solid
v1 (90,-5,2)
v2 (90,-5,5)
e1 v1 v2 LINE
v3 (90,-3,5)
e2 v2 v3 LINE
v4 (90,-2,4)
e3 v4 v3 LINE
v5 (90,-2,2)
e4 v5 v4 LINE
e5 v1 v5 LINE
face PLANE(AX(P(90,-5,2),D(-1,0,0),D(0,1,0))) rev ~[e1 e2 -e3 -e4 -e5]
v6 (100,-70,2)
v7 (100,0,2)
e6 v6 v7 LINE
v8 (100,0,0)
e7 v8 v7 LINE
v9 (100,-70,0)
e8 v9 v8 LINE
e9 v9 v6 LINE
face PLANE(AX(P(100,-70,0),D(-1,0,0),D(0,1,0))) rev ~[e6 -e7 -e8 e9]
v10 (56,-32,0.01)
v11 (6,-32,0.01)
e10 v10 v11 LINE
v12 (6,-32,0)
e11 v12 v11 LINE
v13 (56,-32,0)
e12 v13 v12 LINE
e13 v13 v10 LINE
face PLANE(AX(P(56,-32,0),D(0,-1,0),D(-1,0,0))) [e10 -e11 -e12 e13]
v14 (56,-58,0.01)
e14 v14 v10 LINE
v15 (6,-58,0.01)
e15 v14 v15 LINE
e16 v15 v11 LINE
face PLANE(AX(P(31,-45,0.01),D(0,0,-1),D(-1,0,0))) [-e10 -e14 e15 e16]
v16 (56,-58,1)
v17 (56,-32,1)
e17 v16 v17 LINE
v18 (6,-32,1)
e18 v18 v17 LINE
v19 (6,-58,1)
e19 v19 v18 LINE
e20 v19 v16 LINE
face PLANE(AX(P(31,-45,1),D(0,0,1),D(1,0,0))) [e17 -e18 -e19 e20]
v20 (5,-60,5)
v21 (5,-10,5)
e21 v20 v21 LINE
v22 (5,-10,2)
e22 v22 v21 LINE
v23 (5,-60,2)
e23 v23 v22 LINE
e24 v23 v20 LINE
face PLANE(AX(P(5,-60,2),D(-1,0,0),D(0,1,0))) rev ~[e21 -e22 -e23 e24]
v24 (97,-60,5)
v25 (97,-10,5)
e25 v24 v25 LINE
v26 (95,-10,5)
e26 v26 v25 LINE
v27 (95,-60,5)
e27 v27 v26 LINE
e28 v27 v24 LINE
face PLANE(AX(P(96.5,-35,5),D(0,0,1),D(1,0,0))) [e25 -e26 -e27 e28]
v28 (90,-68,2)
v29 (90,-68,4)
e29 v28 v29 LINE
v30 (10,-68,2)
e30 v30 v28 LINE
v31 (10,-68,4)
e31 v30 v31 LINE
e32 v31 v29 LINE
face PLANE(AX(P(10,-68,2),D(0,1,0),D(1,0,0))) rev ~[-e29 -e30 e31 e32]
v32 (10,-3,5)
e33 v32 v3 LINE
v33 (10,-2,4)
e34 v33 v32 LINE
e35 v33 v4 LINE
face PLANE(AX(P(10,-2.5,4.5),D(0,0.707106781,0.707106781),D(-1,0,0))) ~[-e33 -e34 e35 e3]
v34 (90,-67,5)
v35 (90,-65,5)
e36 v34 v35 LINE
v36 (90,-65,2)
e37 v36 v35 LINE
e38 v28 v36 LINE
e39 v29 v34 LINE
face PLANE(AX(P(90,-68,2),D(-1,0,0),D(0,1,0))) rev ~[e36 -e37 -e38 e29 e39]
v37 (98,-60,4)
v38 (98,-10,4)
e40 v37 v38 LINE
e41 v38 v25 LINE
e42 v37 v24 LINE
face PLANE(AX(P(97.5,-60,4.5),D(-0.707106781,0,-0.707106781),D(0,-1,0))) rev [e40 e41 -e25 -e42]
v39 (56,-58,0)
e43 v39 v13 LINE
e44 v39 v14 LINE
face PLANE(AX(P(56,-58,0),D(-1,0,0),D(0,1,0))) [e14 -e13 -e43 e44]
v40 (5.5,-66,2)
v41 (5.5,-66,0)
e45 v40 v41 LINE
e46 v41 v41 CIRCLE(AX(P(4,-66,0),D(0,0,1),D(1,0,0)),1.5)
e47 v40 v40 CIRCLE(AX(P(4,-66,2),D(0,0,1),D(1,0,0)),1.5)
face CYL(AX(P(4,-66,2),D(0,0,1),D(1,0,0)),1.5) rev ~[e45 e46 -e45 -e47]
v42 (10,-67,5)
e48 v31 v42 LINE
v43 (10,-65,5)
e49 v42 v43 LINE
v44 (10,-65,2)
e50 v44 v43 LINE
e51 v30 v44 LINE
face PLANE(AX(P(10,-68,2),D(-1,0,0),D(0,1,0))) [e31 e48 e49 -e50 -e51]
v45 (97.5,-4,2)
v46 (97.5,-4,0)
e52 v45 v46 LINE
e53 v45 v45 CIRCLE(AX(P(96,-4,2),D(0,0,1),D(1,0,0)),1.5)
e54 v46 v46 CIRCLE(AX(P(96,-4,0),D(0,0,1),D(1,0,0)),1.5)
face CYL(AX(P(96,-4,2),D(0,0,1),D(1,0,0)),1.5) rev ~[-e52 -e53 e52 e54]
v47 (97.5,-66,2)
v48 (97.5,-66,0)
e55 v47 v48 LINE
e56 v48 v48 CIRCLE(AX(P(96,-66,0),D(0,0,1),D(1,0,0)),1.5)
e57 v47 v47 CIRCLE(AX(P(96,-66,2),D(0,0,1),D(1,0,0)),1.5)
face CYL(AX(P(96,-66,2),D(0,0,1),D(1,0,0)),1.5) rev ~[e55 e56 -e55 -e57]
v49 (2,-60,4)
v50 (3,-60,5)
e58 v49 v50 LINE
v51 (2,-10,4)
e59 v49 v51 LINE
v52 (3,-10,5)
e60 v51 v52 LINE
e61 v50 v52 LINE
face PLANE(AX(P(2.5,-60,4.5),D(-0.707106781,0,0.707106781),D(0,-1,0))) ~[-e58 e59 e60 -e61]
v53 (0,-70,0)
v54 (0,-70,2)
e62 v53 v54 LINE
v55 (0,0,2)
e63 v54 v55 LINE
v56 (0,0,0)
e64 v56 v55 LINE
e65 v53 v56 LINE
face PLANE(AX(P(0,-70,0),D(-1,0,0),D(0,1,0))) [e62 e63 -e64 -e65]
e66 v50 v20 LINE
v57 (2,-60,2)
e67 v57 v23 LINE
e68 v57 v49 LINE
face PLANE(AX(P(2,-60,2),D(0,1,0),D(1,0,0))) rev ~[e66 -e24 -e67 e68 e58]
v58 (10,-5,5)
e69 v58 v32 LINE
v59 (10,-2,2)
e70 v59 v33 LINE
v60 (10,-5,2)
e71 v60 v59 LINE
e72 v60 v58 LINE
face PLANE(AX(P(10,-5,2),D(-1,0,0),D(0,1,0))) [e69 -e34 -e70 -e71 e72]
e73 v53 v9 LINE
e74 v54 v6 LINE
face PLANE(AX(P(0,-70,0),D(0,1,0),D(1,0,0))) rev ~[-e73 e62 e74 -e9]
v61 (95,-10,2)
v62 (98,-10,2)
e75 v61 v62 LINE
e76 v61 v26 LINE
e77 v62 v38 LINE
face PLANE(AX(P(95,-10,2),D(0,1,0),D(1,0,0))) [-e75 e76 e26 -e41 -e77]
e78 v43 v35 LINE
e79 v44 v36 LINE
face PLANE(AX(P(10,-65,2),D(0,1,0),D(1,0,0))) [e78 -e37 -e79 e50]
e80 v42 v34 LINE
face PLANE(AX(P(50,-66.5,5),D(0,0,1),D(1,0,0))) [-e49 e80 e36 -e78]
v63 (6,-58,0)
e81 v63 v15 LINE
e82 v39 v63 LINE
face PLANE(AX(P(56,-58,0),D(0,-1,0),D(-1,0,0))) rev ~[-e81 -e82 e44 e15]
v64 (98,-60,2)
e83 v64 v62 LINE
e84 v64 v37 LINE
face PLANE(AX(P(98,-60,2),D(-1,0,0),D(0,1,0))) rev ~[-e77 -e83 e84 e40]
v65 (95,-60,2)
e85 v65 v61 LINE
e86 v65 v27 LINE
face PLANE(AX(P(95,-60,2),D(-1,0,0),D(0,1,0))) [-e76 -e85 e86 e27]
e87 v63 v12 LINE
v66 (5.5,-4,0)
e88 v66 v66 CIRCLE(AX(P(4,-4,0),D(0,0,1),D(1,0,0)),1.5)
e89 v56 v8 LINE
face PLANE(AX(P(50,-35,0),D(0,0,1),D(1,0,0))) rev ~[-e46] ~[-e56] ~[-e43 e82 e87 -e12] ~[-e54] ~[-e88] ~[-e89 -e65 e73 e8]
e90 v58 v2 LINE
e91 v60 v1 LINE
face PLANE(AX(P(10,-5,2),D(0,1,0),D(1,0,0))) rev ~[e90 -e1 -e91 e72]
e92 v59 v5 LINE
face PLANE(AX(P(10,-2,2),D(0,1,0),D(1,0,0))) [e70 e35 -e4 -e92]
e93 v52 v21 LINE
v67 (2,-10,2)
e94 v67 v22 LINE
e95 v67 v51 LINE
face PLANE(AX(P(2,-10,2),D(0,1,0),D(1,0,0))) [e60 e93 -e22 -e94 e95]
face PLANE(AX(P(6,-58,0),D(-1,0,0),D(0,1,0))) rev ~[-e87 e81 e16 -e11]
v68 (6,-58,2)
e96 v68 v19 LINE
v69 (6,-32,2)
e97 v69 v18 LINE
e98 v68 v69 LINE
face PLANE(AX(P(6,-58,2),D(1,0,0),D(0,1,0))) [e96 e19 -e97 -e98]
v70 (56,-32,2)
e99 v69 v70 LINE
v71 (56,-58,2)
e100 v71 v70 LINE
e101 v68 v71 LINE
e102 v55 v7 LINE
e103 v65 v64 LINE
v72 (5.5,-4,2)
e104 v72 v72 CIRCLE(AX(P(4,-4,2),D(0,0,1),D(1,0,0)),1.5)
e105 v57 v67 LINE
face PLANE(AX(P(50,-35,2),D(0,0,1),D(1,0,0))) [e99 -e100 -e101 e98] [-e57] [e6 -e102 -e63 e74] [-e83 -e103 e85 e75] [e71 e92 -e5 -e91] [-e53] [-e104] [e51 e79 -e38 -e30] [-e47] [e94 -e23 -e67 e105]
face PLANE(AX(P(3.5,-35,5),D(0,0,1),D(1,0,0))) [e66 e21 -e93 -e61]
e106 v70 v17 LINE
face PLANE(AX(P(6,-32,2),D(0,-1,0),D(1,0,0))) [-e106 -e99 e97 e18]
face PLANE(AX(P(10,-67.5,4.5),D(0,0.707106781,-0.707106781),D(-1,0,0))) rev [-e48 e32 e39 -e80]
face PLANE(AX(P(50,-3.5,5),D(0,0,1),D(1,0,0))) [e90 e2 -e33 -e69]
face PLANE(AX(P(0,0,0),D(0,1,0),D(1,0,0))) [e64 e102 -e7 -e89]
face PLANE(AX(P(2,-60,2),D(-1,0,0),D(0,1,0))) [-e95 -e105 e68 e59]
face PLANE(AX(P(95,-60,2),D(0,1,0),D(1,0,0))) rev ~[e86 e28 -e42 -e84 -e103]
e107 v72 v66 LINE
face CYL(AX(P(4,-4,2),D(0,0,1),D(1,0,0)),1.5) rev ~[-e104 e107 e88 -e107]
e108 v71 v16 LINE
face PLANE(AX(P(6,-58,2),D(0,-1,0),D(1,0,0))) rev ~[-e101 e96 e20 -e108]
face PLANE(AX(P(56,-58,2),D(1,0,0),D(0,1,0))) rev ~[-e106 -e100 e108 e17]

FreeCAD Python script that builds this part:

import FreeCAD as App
import Part
import Sketcher


def edges_at(feature, points):
    """Names of the edges that pass closest to the given points."""
    edges = feature.Shape.Edges
    near = lambda p: min(range(len(edges)), key=lambda i: edges[i].distToShape(Part.Vertex(*p))[0])
    return sorted({f"Edge{near(p) + 1}" for p in points})

doc = App.newDocument("Part")
body = doc.addObject("PartDesign::Body", "Body")

# Sketch on XY plane
sketch1 = doc.addObject("Sketcher::SketchObject", "Sketch")
body.addObject(sketch1)
sketch1.AttachmentSupport = (doc.XY_Plane, [""])
sketch1.MapMode = "FlatFace"
sketch1.addGeometry(Part.LineSegment(App.Vector(0, 0, 0), App.Vector(0, -70, 0)), False)
sketch1.addGeometry(Part.LineSegment(App.Vector(0, -70, 0), App.Vector(100, -70, 0)), False)
sketch1.addGeometry(Part.LineSegment(App.Vector(100, -70, 0), App.Vector(100, 0, 0)), False)
sketch1.addGeometry(Part.LineSegment(App.Vector(100, 0, 0), App.Vector(0, 0, 0)), False)
sketch1.addConstraint(Sketcher.Constraint("Coincident", 0, 2, 1, 1))
sketch1.addConstraint(Sketcher.Constraint("Coincident", 1, 2, 2, 1))
sketch1.addConstraint(Sketcher.Constraint("Coincident", 2, 2, 3, 1))
sketch1.addConstraint(Sketcher.Constraint("Coincident", 3, 2, 0, 1))
sketch1.addConstraint(Sketcher.Constraint("Vertical", 0))
sketch1.addConstraint(Sketcher.Constraint("Horizontal", 1))
sketch1.addConstraint(Sketcher.Constraint("Vertical", 2))
sketch1.addConstraint(Sketcher.Constraint("Horizontal", 3))
sketch1.addConstraint(Sketcher.Constraint("Coincident", 3, 2, -1, 1))
sketch1.addConstraint(Sketcher.Constraint("DistanceX", 1, 1, 1, 2, 100.0))
sketch1.addConstraint(Sketcher.Constraint("DistanceY", 0, 2, 0, 1, 70.0))
pad1 = doc.addObject("PartDesign::Pad", "Pad")
body.addObject(pad1)
pad1.Profile = sketch1
pad1.Length = 2

# Sketch on XY plane
sketch2 = doc.addObject("Sketcher::SketchObject", "Sketch001")
body.addObject(sketch2)
sketch2.AttachmentSupport = (doc.XY_Plane, [""])
sketch2.MapMode = "FlatFace"
sketch2.AttachmentOffset = App.Placement(App.Vector(0, 0, 2), App.Rotation())
sketch2.addGeometry(Part.LineSegment(App.Vector(10, -2, 0), App.Vector(10, -5, 0)), False)
sketch2.addGeometry(Part.LineSegment(App.Vector(10, -5, 0), App.Vector(90, -5, 0)), False)
sketch2.addGeometry(Part.LineSegment(App.Vector(90, -5, 0), App.Vector(90, -2, 0)), False)
sketch2.addGeometry(Part.LineSegment(App.Vector(90, -2, 0), App.Vector(10, -2, 0)), False)
sketch2.addGeometry(Part.LineSegment(App.Vector(10, -65, 0), App.Vector(10, -68, 0)), False)
sketch2.addGeometry(Part.LineSegment(App.Vector(10, -68, 0), App.Vector(90, -68, 0)), False)
sketch2.addGeometry(Part.LineSegment(App.Vector(90, -68, 0), App.Vector(90, -65, 0)), False)
sketch2.addGeometry(Part.LineSegment(App.Vector(90, -65, 0), App.Vector(10, -65, 0)), False)
sketch2.addGeometry(Part.LineSegment(App.Vector(95, -10, 0), App.Vector(95, -60, 0)), False)
sketch2.addGeometry(Part.LineSegment(App.Vector(95, -60, 0), App.Vector(98, -60, 0)), False)
sketch2.addGeometry(Part.LineSegment(App.Vector(98, -60, 0), App.Vector(98, -10, 0)), False)
sketch2.addGeometry(Part.LineSegment(App.Vector(98, -10, 0), App.Vector(95, -10, 0)), False)
sketch2.addGeometry(Part.LineSegment(App.Vector(2, -10, 0), App.Vector(2, -60, 0)), False)
sketch2.addGeometry(Part.LineSegment(App.Vector(2, -60, 0), App.Vector(5, -60, 0)), False)
sketch2.addGeometry(Part.LineSegment(App.Vector(5, -60, 0), App.Vector(5, -10, 0)), False)
sketch2.addGeometry(Part.LineSegment(App.Vector(5, -10, 0), App.Vector(2, -10, 0)), False)
sketch2.addConstraint(Sketcher.Constraint("Coincident", 0, 2, 1, 1))
sketch2.addConstraint(Sketcher.Constraint("Coincident", 1, 2, 2, 1))
sketch2.addConstraint(Sketcher.Constraint("Coincident", 2, 2, 3, 1))
sketch2.addConstraint(Sketcher.Constraint("Coincident", 3, 2, 0, 1))
sketch2.addConstraint(Sketcher.Constraint("Coincident", 4, 2, 5, 1))
sketch2.addConstraint(Sketcher.Constraint("Coincident", 5, 2, 6, 1))
sketch2.addConstraint(Sketcher.Constraint("Coincident", 6, 2, 7, 1))
sketch2.addConstraint(Sketcher.Constraint("Coincident", 7, 2, 4, 1))
sketch2.addConstraint(Sketcher.Constraint("Coincident", 8, 2, 9, 1))
sketch2.addConstraint(Sketcher.Constraint("Coincident", 9, 2, 10, 1))
sketch2.addConstraint(Sketcher.Constraint("Coincident", 10, 2, 11, 1))
sketch2.addConstraint(Sketcher.Constraint("Coincident", 11, 2, 8, 1))
sketch2.addConstraint(Sketcher.Constraint("Coincident", 12, 2, 13, 1))
sketch2.addConstraint(Sketcher.Constraint("Coincident", 13, 2, 14, 1))
sketch2.addConstraint(Sketcher.Constraint("Coincident", 14, 2, 15, 1))
sketch2.addConstraint(Sketcher.Constraint("Coincident", 15, 2, 12, 1))
sketch2.addConstraint(Sketcher.Constraint("Vertical", 0))
sketch2.addConstraint(Sketcher.Constraint("Horizontal", 1))
sketch2.addConstraint(Sketcher.Constraint("Vertical", 2))
sketch2.addConstraint(Sketcher.Constraint("Horizontal", 3))
sketch2.addConstraint(Sketcher.Constraint("Vertical", 4))
sketch2.addConstraint(Sketcher.Constraint("Horizontal", 5))
sketch2.addConstraint(Sketcher.Constraint("Vertical", 6))
sketch2.addConstraint(Sketcher.Constraint("Horizontal", 7))
sketch2.addConstraint(Sketcher.Constraint("Vertical", 8))
sketch2.addConstraint(Sketcher.Constraint("Horizontal", 9))
sketch2.addConstraint(Sketcher.Constraint("Vertical", 10))
sketch2.addConstraint(Sketcher.Constraint("Horizontal", 11))
sketch2.addConstraint(Sketcher.Constraint("Vertical", 12))
sketch2.addConstraint(Sketcher.Constraint("Horizontal", 13))
sketch2.addConstraint(Sketcher.Constraint("Vertical", 14))
sketch2.addConstraint(Sketcher.Constraint("Horizontal", 15))
sketch2.addConstraint(Sketcher.Constraint("Horizontal", 9, 2, 12, 2))
sketch2.addConstraint(Sketcher.Constraint("Horizontal", 11, 2, 14, 2))
sketch2.addConstraint(Sketcher.Constraint("Vertical", 3, 2, 4, 2))
sketch2.addConstraint(Sketcher.Constraint("Vertical", 2, 2, 5, 2))
sketch2.addConstraint(Sketcher.Constraint("Equal", 11, 13))
sketch2.addConstraint(Sketcher.Constraint("Equal", 15, 0))
sketch2.addConstraint(Sketcher.Constraint("Equal", 2, 4))
sketch2.addConstraint(Sketcher.Constraint("DistanceX", 1, 1, 1, 2, 80.0))
sketch2.addConstraint(Sketcher.Constraint("DistanceX", 9, 1, 9, 2, 3.0))
sketch2.addConstraint(Sketcher.Constraint("DistanceY", 8, 2, 8, 1, 50.0))
sketch2.addConstraint(Sketcher.Constraint("DistanceX", -1, 1, 0, 2, 10.0))
sketch2.addConstraint(Sketcher.Constraint("DistanceY", 0, 2, -1, 1, 5.0))
sketch2.addConstraint(Sketcher.Constraint("DistanceY", 4, 2, -1, 1, 68.0))
sketch2.addConstraint(Sketcher.Constraint("DistanceX", -1, 1, 8, 2, 95.0))
sketch2.addConstraint(Sketcher.Constraint("DistanceY", 8, 2, -1, 1, 60.0))
sketch2.addConstraint(Sketcher.Constraint("DistanceX", -1, 1, 12, 2, 2.0))
pad2 = doc.addObject("PartDesign::Pad", "Pad001")
body.addObject(pad2)
pad2.Profile = sketch2
pad2.Length = 3
doc.recompute()

chamfer = doc.addObject("PartDesign::Chamfer", "Chamfer")
body.addObject(chamfer)
chamfer.Base = (pad2, edges_at(pad2, [
    (50, -2, 5),
    (50, -68, 5),
    (98, -35, 5),
    (2, -35, 5),
]))
chamfer.Size = 1

# Sketch on XY plane
sketch3 = doc.addObject("Sketcher::SketchObject", "Sketch002")
body.addObject(sketch3)
sketch3.AttachmentSupport = (doc.XY_Plane, [""])
sketch3.MapMode = "FlatFace"
sketch3.AttachmentOffset = App.Placement(App.Vector(0, 0, 2), App.Rotation())
sketch3.addGeometry(Part.Circle(App.Vector(4, -4, 0), App.Vector(0, 0, 1), 1.5), False)
sketch3.addGeometry(Part.Circle(App.Vector(96, -4, 0), App.Vector(0, 0, 1), 1.5), False)
sketch3.addGeometry(Part.Circle(App.Vector(96, -66, 0), App.Vector(0, 0, 1), 1.5), False)
sketch3.addGeometry(Part.Circle(App.Vector(4, -66, 0), App.Vector(0, 0, 1), 1.5), False)
sketch3.addConstraint(Sketcher.Constraint("Equal", 0, 1))
sketch3.addConstraint(Sketcher.Constraint("Equal", 1, 2))
sketch3.addConstraint(Sketcher.Constraint("Equal", 2, 3))
sketch3.addConstraint(Sketcher.Constraint("Horizontal", 0, 3, 1, 3))
sketch3.addConstraint(Sketcher.Constraint("Horizontal", 2, 3, 3, 3))
sketch3.addConstraint(Sketcher.Constraint("Vertical", 1, 3, 2, 3))
sketch3.addConstraint(Sketcher.Constraint("Vertical", 0, 3, 3, 3))
sketch3.addConstraint(Sketcher.Constraint("Diameter", 0, 3.0))
sketch3.addConstraint(Sketcher.Constraint("DistanceX", -1, 1, 0, 3, 4.0))
sketch3.addConstraint(Sketcher.Constraint("DistanceY", 0, 3, -1, 1, 4.0))
sketch3.addConstraint(Sketcher.Constraint("DistanceX", -1, 1, 1, 3, 96.0))
sketch3.addConstraint(Sketcher.Constraint("DistanceY", 2, 3, -1, 1, 66.0))
pocket1 = doc.addObject("PartDesign::Pocket", "Pocket")
body.addObject(pocket1)
pocket1.Profile = sketch3
pocket1.Type = "ThroughAll"

# Sketch on XY plane
sketch4 = doc.addObject("Sketcher::SketchObject", "Sketch003")
body.addObject(sketch4)
sketch4.AttachmentSupport = (doc.XY_Plane, [""])
sketch4.MapMode = "FlatFace"
sketch4.addGeometry(Part.LineSegment(App.Vector(56, -32, 0), App.Vector(56, -58, 0)), False)
sketch4.addGeometry(Part.LineSegment(App.Vector(56, -58, 0), App.Vector(6, -58, 0)), False)
sketch4.addGeometry(Part.LineSegment(App.Vector(6, -58, 0), App.Vector(6, -32, 0)), False)
sketch4.addGeometry(Part.LineSegment(App.Vector(6, -32, 0), App.Vector(56, -32, 0)), False)
sketch4.addConstraint(Sketcher.Constraint("Coincident", 0, 2, 1, 1))
sketch4.addConstraint(Sketcher.Constraint("Coincident", 1, 2, 2, 1))
sketch4.addConstraint(Sketcher.Constraint("Coincident", 2, 2, 3, 1))
sketch4.addConstraint(Sketcher.Constraint("Coincident", 3, 2, 0, 1))
sketch4.addConstraint(Sketcher.Constraint("Vertical", 0))
sketch4.addConstraint(Sketcher.Constraint("Horizontal", 1))
sketch4.addConstraint(Sketcher.Constraint("Vertical", 2))
sketch4.addConstraint(Sketcher.Constraint("Horizontal", 3))
sketch4.addConstraint(Sketcher.Constraint("DistanceX", 1, 2, 1, 1, 50.0))
sketch4.addConstraint(Sketcher.Constraint("DistanceY", 0, 2, 0, 1, 26.0))
sketch4.addConstraint(Sketcher.Constraint("DistanceX", -1, 1, 0, 2, 56.0))
sketch4.addConstraint(Sketcher.Constraint("DistanceY", 0, 2, -1, 1, 58.0))
pocket2 = doc.addObject("PartDesign::Pocket", "Pocket001")
body.addObject(pocket2)
pocket2.Profile = sketch4
pocket2.Length = 0.01
pocket2.Reversed = True

# Sketch on XY plane
sketch5 = doc.addObject("Sketcher::SketchObject", "Sketch004")
body.addObject(sketch5)
sketch5.AttachmentSupport = (doc.XY_Plane, [""])
sketch5.MapMode = "FlatFace"
sketch5.AttachmentOffset = App.Placement(App.Vector(0, 0, 2), App.Rotation())
sketch5.addGeometry(Part.LineSegment(App.Vector(6, -32, 0), App.Vector(6, -58, 0)), False)
sketch5.addGeometry(Part.LineSegment(App.Vector(6, -58, 0), App.Vector(56, -58, 0)), False)
sketch5.addGeometry(Part.LineSegment(App.Vector(56, -58, 0), App.Vector(56, -32, 0)), False)
sketch5.addGeometry(Part.LineSegment(App.Vector(56, -32, 0), App.Vector(6, -32, 0)), False)
sketch5.addConstraint(Sketcher.Constraint("Coincident", 0, 2, 1, 1))
sketch5.addConstraint(Sketcher.Constraint("Coincident", 1, 2, 2, 1))
sketch5.addConstraint(Sketcher.Constraint("Coincident", 2, 2, 3, 1))
sketch5.addConstraint(Sketcher.Constraint("Coincident", 3, 2, 0, 1))
sketch5.addConstraint(Sketcher.Constraint("Vertical", 0))
sketch5.addConstraint(Sketcher.Constraint("Horizontal", 1))
sketch5.addConstraint(Sketcher.Constraint("Vertical", 2))
sketch5.addConstraint(Sketcher.Constraint("Horizontal", 3))
sketch5.addConstraint(Sketcher.Constraint("DistanceX", 1, 1, 1, 2, 50.0))
sketch5.addConstraint(Sketcher.Constraint("DistanceY", 0, 2, 0, 1, 26.0))
sketch5.addConstraint(Sketcher.Constraint("DistanceX", -1, 1, 0, 2, 6.0))
sketch5.addConstraint(Sketcher.Constraint("DistanceY", 0, 2, -1, 1, 58.0))
pocket3 = doc.addObject("PartDesign::Pocket", "Pocket002")
body.addObject(pocket3)
pocket3.Profile = sketch5
pocket3.Length = 1

doc.recompute()
